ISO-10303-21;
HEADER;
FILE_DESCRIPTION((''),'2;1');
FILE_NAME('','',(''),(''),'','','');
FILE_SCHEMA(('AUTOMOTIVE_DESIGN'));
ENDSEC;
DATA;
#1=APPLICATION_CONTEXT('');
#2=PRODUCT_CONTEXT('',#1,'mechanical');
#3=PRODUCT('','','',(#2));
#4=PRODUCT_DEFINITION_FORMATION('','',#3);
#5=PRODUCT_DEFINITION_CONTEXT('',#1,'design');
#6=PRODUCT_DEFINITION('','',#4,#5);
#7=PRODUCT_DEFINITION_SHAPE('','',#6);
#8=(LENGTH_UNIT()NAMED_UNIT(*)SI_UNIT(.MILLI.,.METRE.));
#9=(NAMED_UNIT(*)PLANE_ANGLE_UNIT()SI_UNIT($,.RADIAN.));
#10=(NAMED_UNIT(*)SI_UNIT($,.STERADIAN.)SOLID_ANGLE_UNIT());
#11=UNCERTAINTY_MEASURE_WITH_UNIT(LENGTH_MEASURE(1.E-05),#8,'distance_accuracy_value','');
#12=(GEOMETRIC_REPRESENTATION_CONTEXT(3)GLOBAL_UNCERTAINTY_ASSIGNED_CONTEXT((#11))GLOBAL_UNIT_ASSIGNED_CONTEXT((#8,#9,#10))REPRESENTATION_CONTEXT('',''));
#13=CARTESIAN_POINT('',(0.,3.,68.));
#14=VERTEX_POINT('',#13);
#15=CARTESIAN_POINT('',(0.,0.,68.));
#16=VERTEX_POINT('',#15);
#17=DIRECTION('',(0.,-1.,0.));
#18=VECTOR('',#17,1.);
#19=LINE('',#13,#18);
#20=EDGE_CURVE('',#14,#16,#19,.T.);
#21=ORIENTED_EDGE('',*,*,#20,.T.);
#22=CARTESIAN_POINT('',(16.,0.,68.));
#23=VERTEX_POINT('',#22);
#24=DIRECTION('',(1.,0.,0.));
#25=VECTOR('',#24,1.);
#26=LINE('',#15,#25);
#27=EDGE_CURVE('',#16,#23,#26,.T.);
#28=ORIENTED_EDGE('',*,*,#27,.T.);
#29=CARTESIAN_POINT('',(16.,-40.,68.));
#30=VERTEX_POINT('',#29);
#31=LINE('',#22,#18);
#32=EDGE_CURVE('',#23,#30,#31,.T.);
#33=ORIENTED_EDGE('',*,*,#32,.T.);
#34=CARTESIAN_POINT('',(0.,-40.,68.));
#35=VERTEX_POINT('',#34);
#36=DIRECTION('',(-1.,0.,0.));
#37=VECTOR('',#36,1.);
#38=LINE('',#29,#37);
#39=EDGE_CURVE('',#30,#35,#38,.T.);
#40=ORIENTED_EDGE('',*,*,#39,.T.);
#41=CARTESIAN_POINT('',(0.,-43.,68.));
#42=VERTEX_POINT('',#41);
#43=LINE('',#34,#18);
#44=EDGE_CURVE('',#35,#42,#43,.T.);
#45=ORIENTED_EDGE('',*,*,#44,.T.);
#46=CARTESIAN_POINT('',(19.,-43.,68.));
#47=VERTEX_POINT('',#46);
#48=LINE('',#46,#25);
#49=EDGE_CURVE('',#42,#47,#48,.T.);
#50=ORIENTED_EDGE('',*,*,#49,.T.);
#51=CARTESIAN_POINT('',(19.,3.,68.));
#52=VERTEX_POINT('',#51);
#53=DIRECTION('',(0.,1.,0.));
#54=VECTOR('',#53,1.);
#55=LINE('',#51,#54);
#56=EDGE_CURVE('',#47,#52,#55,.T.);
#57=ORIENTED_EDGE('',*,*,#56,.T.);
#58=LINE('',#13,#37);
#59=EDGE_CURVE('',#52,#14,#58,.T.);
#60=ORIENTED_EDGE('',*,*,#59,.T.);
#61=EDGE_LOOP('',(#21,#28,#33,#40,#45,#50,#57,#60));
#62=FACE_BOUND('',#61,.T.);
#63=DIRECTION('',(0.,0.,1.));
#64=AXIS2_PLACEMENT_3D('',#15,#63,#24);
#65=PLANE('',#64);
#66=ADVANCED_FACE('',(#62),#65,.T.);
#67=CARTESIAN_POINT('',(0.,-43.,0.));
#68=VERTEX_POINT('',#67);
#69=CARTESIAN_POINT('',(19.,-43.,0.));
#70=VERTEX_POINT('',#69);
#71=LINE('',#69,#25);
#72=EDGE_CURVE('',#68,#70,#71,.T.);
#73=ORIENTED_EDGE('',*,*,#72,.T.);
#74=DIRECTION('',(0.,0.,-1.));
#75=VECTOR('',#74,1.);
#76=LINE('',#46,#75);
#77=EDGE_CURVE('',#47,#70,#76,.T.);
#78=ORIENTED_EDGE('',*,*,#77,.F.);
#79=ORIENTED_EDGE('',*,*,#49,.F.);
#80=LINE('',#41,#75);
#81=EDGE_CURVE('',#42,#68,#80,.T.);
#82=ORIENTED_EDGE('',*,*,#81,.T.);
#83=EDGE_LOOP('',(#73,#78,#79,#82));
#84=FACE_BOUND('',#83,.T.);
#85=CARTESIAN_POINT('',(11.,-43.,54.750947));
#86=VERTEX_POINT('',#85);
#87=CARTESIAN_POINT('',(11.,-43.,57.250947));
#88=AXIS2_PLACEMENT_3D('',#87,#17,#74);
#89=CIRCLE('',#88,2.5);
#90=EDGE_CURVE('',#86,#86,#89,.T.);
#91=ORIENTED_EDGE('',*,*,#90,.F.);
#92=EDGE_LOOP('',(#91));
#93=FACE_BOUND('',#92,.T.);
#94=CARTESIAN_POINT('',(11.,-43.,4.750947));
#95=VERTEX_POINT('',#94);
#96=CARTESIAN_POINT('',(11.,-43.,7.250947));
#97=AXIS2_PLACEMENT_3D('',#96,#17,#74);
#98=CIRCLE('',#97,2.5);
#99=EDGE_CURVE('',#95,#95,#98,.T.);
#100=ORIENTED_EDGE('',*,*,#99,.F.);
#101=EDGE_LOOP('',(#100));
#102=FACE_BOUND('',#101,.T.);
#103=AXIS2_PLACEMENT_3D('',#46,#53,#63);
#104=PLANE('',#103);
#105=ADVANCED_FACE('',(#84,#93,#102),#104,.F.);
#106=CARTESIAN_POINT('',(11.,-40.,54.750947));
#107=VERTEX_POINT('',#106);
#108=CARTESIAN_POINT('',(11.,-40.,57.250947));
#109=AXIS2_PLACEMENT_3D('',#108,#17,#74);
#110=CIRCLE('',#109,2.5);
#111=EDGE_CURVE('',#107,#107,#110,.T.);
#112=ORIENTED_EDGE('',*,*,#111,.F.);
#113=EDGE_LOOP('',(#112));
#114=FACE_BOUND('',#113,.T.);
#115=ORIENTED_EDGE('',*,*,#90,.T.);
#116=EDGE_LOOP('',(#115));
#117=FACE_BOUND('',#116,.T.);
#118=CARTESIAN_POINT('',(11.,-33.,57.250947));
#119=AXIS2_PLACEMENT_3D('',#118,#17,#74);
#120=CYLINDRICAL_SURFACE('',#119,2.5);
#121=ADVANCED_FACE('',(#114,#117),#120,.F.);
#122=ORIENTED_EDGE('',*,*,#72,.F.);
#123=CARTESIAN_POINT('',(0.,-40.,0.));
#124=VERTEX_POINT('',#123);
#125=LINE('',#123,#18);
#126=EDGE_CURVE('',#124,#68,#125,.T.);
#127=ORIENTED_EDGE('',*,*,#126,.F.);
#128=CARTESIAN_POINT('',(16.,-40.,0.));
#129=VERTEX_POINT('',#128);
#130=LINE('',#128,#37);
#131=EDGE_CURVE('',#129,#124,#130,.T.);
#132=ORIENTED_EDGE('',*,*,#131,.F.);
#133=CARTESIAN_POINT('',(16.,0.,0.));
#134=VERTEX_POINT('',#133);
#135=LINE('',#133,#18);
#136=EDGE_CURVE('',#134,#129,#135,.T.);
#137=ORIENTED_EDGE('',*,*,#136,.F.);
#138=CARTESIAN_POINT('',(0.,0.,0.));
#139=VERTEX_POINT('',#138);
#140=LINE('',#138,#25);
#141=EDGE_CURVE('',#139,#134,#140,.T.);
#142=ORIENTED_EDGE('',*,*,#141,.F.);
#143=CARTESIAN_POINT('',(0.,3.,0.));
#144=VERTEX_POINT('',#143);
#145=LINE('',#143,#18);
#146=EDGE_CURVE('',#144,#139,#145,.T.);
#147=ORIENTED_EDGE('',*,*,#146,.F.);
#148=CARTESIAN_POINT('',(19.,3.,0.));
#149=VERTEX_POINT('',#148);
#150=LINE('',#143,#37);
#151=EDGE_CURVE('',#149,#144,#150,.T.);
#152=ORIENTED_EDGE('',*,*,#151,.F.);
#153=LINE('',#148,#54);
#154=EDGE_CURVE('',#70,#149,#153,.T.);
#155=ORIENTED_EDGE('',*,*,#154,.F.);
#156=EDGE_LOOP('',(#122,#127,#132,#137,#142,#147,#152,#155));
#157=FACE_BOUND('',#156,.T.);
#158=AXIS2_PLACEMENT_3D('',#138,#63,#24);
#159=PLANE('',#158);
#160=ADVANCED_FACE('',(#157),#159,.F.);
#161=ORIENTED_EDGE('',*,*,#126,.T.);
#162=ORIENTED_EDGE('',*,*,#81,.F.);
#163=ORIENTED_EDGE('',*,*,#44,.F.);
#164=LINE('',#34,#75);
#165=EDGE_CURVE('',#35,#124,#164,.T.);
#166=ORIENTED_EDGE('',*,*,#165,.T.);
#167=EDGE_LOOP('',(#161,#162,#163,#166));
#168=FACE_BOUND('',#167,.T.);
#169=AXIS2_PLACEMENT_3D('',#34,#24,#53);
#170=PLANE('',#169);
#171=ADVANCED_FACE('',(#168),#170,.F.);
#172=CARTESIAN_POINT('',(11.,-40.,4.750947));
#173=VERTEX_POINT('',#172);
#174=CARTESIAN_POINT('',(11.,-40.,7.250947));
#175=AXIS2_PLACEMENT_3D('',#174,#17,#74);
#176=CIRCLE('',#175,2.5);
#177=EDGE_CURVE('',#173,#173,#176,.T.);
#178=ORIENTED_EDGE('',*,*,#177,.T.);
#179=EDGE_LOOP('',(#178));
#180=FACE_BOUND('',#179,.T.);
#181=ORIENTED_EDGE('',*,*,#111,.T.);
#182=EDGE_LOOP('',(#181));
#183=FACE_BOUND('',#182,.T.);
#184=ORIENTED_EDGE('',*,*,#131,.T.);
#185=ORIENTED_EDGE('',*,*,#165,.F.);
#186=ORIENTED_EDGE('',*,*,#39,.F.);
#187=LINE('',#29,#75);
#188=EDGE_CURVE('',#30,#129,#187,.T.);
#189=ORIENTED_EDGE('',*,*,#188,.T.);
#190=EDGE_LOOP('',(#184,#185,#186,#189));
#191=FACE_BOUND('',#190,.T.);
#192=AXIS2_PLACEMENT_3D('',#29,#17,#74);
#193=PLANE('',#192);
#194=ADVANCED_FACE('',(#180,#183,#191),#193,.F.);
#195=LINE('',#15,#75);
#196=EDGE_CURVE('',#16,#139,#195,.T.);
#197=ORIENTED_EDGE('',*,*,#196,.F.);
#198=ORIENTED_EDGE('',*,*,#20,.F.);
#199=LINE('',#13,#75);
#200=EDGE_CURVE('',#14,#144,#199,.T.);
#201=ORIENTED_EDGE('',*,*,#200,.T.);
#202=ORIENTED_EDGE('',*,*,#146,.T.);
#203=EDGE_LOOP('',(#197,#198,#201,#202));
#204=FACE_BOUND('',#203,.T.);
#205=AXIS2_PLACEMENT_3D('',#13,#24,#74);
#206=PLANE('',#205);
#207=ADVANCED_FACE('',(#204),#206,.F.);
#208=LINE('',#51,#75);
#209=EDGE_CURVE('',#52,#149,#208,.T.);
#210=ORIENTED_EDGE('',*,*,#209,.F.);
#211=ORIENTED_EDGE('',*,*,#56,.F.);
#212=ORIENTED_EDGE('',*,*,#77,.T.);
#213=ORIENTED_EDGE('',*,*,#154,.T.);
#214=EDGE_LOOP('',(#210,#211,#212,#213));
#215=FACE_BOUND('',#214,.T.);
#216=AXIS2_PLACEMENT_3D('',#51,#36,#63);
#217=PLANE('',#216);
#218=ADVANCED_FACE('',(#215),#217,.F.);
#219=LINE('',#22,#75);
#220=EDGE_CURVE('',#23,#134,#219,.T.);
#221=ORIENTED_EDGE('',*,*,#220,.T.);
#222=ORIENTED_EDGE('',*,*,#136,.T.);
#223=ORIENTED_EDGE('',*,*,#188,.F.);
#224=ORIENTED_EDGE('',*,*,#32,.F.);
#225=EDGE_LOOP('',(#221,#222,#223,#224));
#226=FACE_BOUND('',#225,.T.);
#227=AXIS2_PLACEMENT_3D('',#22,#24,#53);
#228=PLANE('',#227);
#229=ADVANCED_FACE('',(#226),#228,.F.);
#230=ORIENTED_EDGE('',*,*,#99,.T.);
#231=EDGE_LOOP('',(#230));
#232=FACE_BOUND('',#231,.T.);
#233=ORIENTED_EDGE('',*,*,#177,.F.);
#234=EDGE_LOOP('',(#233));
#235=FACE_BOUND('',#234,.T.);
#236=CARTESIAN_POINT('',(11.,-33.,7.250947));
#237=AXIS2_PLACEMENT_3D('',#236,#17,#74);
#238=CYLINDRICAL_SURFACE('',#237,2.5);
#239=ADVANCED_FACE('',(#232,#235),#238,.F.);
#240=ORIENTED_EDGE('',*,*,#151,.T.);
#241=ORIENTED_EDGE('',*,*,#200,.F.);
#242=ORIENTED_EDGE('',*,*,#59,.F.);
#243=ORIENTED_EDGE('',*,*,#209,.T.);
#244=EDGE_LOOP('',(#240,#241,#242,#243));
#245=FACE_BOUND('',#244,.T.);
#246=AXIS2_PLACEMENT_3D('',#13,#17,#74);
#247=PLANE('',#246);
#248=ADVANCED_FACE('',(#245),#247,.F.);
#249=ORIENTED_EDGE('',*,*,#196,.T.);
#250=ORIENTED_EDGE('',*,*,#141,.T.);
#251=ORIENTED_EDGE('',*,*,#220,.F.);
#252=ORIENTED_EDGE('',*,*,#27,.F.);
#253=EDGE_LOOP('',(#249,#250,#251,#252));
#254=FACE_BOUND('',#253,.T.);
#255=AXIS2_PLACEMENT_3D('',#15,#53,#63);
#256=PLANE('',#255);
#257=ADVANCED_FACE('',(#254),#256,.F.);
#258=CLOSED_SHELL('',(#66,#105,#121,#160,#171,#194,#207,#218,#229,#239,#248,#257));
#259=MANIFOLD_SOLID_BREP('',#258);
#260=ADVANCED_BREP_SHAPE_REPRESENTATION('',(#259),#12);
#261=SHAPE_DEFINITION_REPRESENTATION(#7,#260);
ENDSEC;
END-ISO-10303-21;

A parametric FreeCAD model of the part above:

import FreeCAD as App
import Part
import Sketcher
from FreeCAD import Vector
Q = App.Units.Quantity


def add_polygon(sketch, points):
    """Adds a closed chain of lines whose ends are joined by coincident constraints."""
    first, n = sketch.GeometryCount, len(points)
    for a, b in zip(points, points[1:] + points[:1]):
        sketch.addGeometry(Part.LineSegment(App.Vector(*a, 0), App.Vector(*b, 0)), False)
    for i in range(n):
        sketch.addConstraint(Sketcher.Constraint("Coincident", first + i, 2, first + (i + 1) % n, 1))

doc = App.newDocument("Part")
body = doc.addObject("PartDesign::Body", "Body")

# Sketch on XY plane
sketch1 = body.newObject("Sketcher::SketchObject", "Sketch")
sketch1.AttachmentSupport = (doc.getObject("XY_Plane"), [""])
sketch1.MapMode = "FlatFace"
add_polygon(sketch1, [(0, 0), (16, 0), (16, -40), (0, -40), (0, -43), (19, -43), (19, 3), (0, 3)])  # lines 0-7
sketch1.addConstraint([
    Sketcher.Constraint("Horizontal", 0),
    Sketcher.Constraint("Vertical", 1),
    Sketcher.Constraint("Horizontal", 2),
    Sketcher.Constraint("Vertical", 3),
    Sketcher.Constraint("Horizontal", 4),
    Sketcher.Constraint("Vertical", 5),
    Sketcher.Constraint("Horizontal", 6),
    Sketcher.Constraint("Vertical", 7),
    Sketcher.Constraint("Coincident", 7, 2, -1, 1),
    Sketcher.Constraint("PointOnObject", 2, 2, -2),
    Sketcher.Constraint("Equal", 3, 7),
    Sketcher.Constraint("DistanceX", 0, 1, 0, 2, Q("16 mm")),
    Sketcher.Constraint("DistanceX", 4, 1, 4, 2, Q("19 mm")),
    Sketcher.Constraint("DistanceY", 1, 2, 1, 1, Q("40 mm")),
    Sketcher.Constraint("DistanceY", 3, 2, 3, 1, Q("3 mm")),
])
pad1 = body.newObject("PartDesign::Pad", "Pad")
pad1.Profile = sketch1
pad1.Length = 68

# Sketch on XZ plane
sketch2 = body.newObject("Sketcher::SketchObject", "Sketch001")
sketch2.AttachmentSupport = (doc.getObject("XZ_Plane"), [""])
sketch2.MapMode = "FlatFace"
sketch2.AttachmentOffset = App.Placement(Vector(0, 0, 43), App.Rotation())
sketch2.addGeometry([
    Part.Circle(Vector(11, 7.3, 0), Vector(0, 0, 1), 2.5),
    Part.Circle(Vector(11, 57.3, 0), Vector(0, 0, 1), 2.5),
], False)
sketch2.addConstraint([
    Sketcher.Constraint("Equal", 0, 1),
    Sketcher.Constraint("Vertical", 0, 3, 1, 3),
    Sketcher.Constraint("Diameter", 0, Q("5 mm")),
    Sketcher.Constraint("DistanceX", -1, 1, 0, 3, Q("11 mm")),
    Sketcher.Constraint("DistanceY", 0, 3, 1, 3, Q("50 mm")),
    Sketcher.Constraint("DistanceY", -1, 1, 0, 3, Q("7.250947 mm")),
])
pocket1 = body.newObject("PartDesign::Pocket", "Pocket")
pocket1.Profile = sketch2
pocket1.Length = 10

doc.recompute()
